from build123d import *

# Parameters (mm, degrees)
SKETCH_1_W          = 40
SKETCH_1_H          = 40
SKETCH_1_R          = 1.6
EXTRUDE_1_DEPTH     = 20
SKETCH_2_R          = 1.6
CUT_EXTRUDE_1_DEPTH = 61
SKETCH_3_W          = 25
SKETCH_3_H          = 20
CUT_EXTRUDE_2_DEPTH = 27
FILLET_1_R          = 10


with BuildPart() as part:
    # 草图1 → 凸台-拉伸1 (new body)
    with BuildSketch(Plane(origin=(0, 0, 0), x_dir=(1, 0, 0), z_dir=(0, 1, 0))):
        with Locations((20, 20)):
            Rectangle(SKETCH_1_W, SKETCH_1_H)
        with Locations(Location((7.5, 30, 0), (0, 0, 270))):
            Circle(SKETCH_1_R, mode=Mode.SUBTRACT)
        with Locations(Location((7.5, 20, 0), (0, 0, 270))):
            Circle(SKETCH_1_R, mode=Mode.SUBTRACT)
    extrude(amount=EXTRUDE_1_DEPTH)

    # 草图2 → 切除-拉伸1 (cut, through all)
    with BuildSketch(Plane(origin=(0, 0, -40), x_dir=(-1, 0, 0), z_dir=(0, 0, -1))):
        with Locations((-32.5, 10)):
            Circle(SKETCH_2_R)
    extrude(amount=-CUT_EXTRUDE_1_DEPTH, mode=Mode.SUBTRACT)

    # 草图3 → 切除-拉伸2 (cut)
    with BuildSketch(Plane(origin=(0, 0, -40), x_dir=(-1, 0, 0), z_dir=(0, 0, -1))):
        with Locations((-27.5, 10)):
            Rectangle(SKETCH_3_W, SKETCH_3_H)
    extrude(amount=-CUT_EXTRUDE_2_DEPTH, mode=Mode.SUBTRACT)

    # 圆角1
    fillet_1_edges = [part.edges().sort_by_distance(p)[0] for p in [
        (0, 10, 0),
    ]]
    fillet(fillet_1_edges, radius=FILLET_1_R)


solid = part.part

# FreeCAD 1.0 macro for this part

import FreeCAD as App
import Part
import Sketcher

V = App.Vector
Q = App.Units.Quantity


def edges_at(feature, points):
    """Names of the edges that pass closest to the given points."""
    edges = feature.Shape.Edges
    near = lambda p: min(range(len(edges)), key=lambda i: edges[i].distToShape(Part.Vertex(*p))[0])
    return sorted({f"Edge{near(p) + 1}" for p in points})

doc = App.newDocument("Part")
body = doc.addObject("PartDesign::Body", "Body")

sketch1 = doc.addObject("Sketcher::SketchObject", "Sketch")
body.addObject(sketch1)
sketch1.AttachmentSupport = (doc.XZ_Plane, [""])
sketch1.MapMode = "FlatFace"
sketch1.addGeometry([
    Part.LineSegment(V(0, -40, 0), V(0, 0, 0)),
    Part.LineSegment(V(0, 0, 0), V(40, 0, 0)),
    Part.LineSegment(V(40, 0, 0), V(40, -40, 0)),
    Part.LineSegment(V(40, -40, 0), V(0, -40, 0)),
    Part.Circle(V(7.5, -20, 0), V(0, 0, 1), 1.6),
    Part.Circle(V(7.5, -30, 0), V(0, 0, 1), 1.6),
], False)
sketch1.addConstraint([
    Sketcher.Constraint("Coincident", 0, 2, 1, 1),
    Sketcher.Constraint("Coincident", 1, 2, 2, 1),
    Sketcher.Constraint("Coincident", 2, 2, 3, 1),
    Sketcher.Constraint("Coincident", 3, 2, 0, 1),
    Sketcher.Constraint("Vertical", 0),
    Sketcher.Constraint("Horizontal", 1),
    Sketcher.Constraint("Vertical", 2),
    Sketcher.Constraint("Horizontal", 3),
    Sketcher.Constraint("Coincident", 0, 2, -1, 1),
    Sketcher.Constraint("Equal", 4, 5),
    Sketcher.Constraint("Vertical", 4, 3, 5, 3),
    Sketcher.Constraint("Equal", 3, 0),
    Sketcher.Constraint("Diameter", 4, Q("3.2 mm")),
    Sketcher.Constraint("DistanceX", 1, 1, 1, 2, Q("40 mm")),
    Sketcher.Constraint("DistanceY", 4, 3, -1, 1, Q("20 mm")),
    Sketcher.Constraint("DistanceY", 5, 3, -1, 1, Q("30 mm")),
    Sketcher.Constraint("DistanceX", -1, 1, 4, 3, Q("7.5 mm")),
])
pad1 = doc.addObject("PartDesign::Pad", "Pad")
body.addObject(pad1)
pad1.Profile = sketch1
pad1.Length = 20
pad1.Reversed = True

sketch2 = doc.addObject("Sketcher::SketchObject", "Sketch001")
body.addObject(sketch2)
sketch2.AttachmentSupport = (doc.XY_Plane, [""])
sketch2.MapMode = "FlatFace"
sketch2.AttachmentOffset = App.Placement(V(0, 0, -40), App.Rotation())
sketch2.addGeometry(Part.Circle(V(32.5, 10, 0), V(0, 0, 1), 1.6), False)
sketch2.addConstraint([
    Sketcher.Constraint("Diameter", 0, Q("3.2 mm")),
    Sketcher.Constraint("DistanceY", -1, 1, 0, 3, Q("10 mm")),
    Sketcher.Constraint("DistanceX", -1, 1, 0, 3, Q("32.5 mm")),
])
pocket1 = doc.addObject("PartDesign::Pocket", "Pocket")
body.addObject(pocket1)
pocket1.Profile = sketch2
pocket1.Type = "ThroughAll"
pocket1.Reversed = True

sketch3 = doc.addObject("Sketcher::SketchObject", "Sketch002")
body.addObject(sketch3)
sketch3.AttachmentSupport = (doc.XY_Plane, [""])
sketch3.MapMode = "FlatFace"
sketch3.AttachmentOffset = App.Placement(V(0, 0, -40), App.Rotation())
sketch3.addGeometry([
    Part.LineSegment(V(40, 20, 0), V(40, 0, 0)),
    Part.LineSegment(V(40, 0, 0), V(15, 0, 0)),
    Part.LineSegment(V(15, 0, 0), V(15, 20, 0)),
    Part.LineSegment(V(15, 20, 0), V(40, 20, 0)),
], False)
sketch3.addConstraint([
    Sketcher.Constraint("Coincident", 0, 2, 1, 1),
    Sketcher.Constraint("Coincident", 1, 2, 2, 1),
    Sketcher.Constraint("Coincident", 2, 2, 3, 1),
    Sketcher.Constraint("Coincident", 3, 2, 0, 1),
    Sketcher.Constraint("Vertical", 0),
    Sketcher.Constraint("Horizontal", 1),
    Sketcher.Constraint("Vertical", 2),
    Sketcher.Constraint("Horizontal", 3),
    Sketcher.Constraint("PointOnObject", 0, 2, -1),
    Sketcher.Constraint("DistanceX", 1, 2, 1, 1, Q("25 mm")),
    Sketcher.Constraint("DistanceY", 0, 2, 0, 1, Q("20 mm")),
    Sketcher.Constraint("DistanceX", -1, 1, 0, 2, Q("40 mm")),
])
pocket2 = doc.addObject("PartDesign::Pocket", "Pocket001")
body.addObject(pocket2)
pocket2.Profile = sketch3
pocket2.Length = 27
pocket2.Reversed = True
doc.recompute()

fillet = doc.addObject("PartDesign::Fillet", "Fillet")
body.addObject(fillet)
fillet.Base = (pocket2, edges_at(pocket2, [(0, 10, 0)]))
fillet.Radius = 10

doc.recompute()
